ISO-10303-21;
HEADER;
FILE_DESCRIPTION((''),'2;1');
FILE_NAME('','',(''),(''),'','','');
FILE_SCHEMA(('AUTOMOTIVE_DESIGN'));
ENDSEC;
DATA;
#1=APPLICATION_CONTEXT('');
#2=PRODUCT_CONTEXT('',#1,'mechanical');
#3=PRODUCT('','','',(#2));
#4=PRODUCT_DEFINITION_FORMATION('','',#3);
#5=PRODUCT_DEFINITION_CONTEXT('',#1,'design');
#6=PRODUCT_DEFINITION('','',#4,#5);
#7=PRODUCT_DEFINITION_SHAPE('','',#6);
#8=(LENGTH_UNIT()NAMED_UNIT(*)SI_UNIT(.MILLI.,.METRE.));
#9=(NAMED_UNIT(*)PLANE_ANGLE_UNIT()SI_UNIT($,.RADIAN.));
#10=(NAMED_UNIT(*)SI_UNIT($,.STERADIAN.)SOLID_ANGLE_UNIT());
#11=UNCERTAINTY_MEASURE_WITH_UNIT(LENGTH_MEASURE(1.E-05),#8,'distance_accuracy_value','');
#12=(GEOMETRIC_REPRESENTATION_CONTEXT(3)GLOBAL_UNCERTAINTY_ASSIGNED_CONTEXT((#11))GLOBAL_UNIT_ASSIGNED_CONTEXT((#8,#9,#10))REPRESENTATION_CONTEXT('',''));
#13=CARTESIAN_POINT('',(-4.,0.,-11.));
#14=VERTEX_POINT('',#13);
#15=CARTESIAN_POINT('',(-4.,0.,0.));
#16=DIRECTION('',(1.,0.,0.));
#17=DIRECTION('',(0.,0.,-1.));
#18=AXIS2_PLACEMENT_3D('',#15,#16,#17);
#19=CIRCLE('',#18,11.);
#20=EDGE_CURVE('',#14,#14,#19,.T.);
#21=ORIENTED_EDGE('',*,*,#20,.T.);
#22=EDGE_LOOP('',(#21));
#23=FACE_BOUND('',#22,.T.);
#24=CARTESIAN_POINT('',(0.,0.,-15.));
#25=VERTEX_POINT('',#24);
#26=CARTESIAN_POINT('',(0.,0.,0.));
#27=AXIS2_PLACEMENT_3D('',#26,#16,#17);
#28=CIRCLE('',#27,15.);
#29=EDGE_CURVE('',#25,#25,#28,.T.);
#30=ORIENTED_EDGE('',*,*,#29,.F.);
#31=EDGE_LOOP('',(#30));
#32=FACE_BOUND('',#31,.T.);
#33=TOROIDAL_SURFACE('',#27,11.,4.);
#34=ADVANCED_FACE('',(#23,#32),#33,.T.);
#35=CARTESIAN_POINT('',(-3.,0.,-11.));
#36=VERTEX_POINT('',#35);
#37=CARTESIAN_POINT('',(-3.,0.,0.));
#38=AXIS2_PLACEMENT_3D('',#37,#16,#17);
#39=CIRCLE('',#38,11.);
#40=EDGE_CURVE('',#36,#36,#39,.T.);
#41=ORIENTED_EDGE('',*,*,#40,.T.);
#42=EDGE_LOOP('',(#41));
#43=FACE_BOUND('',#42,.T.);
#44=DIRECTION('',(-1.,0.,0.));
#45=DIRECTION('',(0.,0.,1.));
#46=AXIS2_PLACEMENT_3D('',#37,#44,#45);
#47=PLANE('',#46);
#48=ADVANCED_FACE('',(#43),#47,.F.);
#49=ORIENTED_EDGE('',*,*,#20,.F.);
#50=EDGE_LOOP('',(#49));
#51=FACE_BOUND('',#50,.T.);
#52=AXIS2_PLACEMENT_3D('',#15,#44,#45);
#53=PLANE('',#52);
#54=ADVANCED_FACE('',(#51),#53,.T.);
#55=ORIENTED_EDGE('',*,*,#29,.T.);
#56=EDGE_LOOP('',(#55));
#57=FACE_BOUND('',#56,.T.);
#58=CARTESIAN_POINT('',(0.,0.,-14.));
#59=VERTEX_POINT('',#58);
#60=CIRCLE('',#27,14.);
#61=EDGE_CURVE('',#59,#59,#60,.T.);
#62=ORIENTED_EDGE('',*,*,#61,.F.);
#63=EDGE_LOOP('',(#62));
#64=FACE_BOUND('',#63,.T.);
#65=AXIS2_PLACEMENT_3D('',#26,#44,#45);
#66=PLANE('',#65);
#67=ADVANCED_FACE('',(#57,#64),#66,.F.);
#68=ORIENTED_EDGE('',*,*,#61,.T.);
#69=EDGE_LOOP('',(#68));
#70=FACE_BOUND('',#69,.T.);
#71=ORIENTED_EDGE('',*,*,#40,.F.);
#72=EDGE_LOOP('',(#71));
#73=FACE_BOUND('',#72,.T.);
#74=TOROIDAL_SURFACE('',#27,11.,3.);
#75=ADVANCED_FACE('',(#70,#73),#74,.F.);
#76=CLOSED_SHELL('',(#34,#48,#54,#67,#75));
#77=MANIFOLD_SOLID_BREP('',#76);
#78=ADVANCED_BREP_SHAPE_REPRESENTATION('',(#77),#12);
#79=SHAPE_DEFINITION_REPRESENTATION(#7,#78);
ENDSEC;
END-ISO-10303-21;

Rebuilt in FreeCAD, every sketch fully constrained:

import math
import FreeCAD as App
import Part
import Sketcher

V = App.Vector
Q = App.Units.Quantity

doc = App.newDocument("Part")
body = doc.addObject("PartDesign::Body", "Body")

# Sketch on XY plane
sketch1 = body.newObject("Sketcher::SketchObject", "Sketch")
sketch1.AttachmentSupport = (doc.getObject("XY_Plane"), [""])
sketch1.MapMode = "FlatFace"
sketch1.addGeometry([
    Part.LineSegment(V(-3, 0, 0), V(-3, 11, 0)),  # 0
    Part.ArcOfCircle(Part.Circle(V(0, 11, 0), V(0, 0, 1), 3), math.radians(90), math.radians(180)),  # 1
    Part.LineSegment(V(0, 14, 0), V(0, 15, 0)),  # 2
    Part.ArcOfCircle(Part.Circle(V(0, 11, 0), V(0, 0, 1), 4), math.radians(90), math.radians(180)),  # 3
    Part.LineSegment(V(-4, 11, 0), V(-4, 0, 0)),  # 4
    Part.LineSegment(V(-4, 0, 0), V(-3, 0, 0)),  # 5
], False)
sketch1.addConstraint([
    Sketcher.Constraint("Tangent", 0, 2, 1, 2),
    Sketcher.Constraint("Coincident", 1, 1, 2, 1),
    Sketcher.Constraint("Coincident", 2, 2, 3, 1),
    Sketcher.Constraint("Tangent", 3, 2, 4, 1),
    Sketcher.Constraint("Coincident", 4, 2, 5, 1),
    Sketcher.Constraint("Coincident", 5, 2, 0, 1),
    Sketcher.Constraint("Vertical", 0),
    Sketcher.Constraint("Vertical", 2),
    Sketcher.Constraint("Vertical", 4),
    Sketcher.Constraint("Horizontal", 5),
    Sketcher.Constraint("Coincident", 3, 3, 1, 3),
    Sketcher.Constraint("PointOnObject", 1, 3, -2),
    Sketcher.Constraint("PointOnObject", 1, 1, -2),
    Sketcher.Constraint("PointOnObject", 4, 2, -1),
    Sketcher.Constraint("Radius", 1, Q("3 mm")),
    Sketcher.Constraint("Radius", 3, Q("4 mm")),
    Sketcher.Constraint("DistanceY", 0, 1, 0, 2, Q("11 mm")),
])
revolution = body.newObject("PartDesign::Revolution", "Revolution")
revolution.Profile = sketch1
revolution.ReferenceAxis = (sketch1, ["H_Axis"])
revolution.Angle = 360

doc.recompute()
